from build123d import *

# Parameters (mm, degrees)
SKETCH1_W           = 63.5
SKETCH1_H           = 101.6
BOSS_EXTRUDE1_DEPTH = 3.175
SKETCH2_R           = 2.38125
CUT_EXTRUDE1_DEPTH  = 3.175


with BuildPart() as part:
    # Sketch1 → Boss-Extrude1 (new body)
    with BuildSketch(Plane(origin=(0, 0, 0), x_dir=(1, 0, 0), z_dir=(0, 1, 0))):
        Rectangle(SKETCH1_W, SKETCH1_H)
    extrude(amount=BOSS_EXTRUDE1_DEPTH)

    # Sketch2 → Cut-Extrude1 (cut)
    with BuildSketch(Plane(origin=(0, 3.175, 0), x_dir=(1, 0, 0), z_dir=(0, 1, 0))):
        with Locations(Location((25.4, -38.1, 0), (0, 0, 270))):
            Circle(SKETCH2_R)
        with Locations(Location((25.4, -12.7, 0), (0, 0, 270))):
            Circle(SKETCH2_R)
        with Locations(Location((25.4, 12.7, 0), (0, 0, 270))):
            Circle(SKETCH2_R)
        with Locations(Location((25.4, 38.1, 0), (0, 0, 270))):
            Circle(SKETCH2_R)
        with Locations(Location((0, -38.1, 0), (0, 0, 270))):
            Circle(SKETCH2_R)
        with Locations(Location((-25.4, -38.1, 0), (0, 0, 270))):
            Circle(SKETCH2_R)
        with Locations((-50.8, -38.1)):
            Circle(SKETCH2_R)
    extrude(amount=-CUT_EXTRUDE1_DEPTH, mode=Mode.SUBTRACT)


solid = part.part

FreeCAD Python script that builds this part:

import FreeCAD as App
import Part
import Sketcher
Q = App.Units.Quantity

doc = App.newDocument("Part")
body = doc.addObject("PartDesign::Body", "Body")

# Sketch on XZ plane
sketch1 = body.newObject("Sketcher::SketchObject", "Sketch")
sketch1.AttachmentSupport = (doc.getObject("XZ_Plane"), [""])
sketch1.MapMode = "FlatFace"
sketch1.addGeometry([
    Part.LineSegment(App.Vector(-32, -51, 0), App.Vector(-32, 51, 0)),
    Part.LineSegment(App.Vector(-32, 51, 0), App.Vector(32, 51, 0)),
    Part.LineSegment(App.Vector(32, 51, 0), App.Vector(32, -51, 0)),
    Part.LineSegment(App.Vector(32, -51, 0), App.Vector(-32, -51, 0)),
], False)
sketch1.addConstraint([
    Sketcher.Constraint("Coincident", 0, 2, 1, 1),
    Sketcher.Constraint("Coincident", 1, 2, 2, 1),
    Sketcher.Constraint("Coincident", 2, 2, 3, 1),
    Sketcher.Constraint("Coincident", 3, 2, 0, 1),
    Sketcher.Constraint("Vertical", 0),
    Sketcher.Constraint("Horizontal", 1),
    Sketcher.Constraint("Vertical", 2),
    Sketcher.Constraint("Horizontal", 3),
    Sketcher.Constraint("Symmetric", 0, 2, 2, 2, -1, 1),
    Sketcher.Constraint("DistanceY", 0, 1, 0, 2, Q("4 in")),
    Sketcher.Constraint("DistanceX", 1, 1, 1, 2, Q("2.5 in")),
])
pad1 = body.newObject("PartDesign::Pad", "Pad")
pad1.Profile = sketch1
pad1.Length = Q("0.125 in")
pad1.Reversed = True

# Sketch on XZ plane
sketch2 = body.newObject("Sketcher::SketchObject", "Sketch001")
sketch2.AttachmentSupport = (doc.getObject("XZ_Plane"), [""])
sketch2.MapMode = "FlatFace"
sketch2.AttachmentOffset = App.Placement(App.Vector(0, 0, -0.125 * 25.4), App.Rotation())
sketch2.addGeometry([
    Part.Circle(App.Vector(25.4, 38.1, 0), App.Vector(0, 0, 1), 2.4),  # 0
    Part.Circle(App.Vector(25.4, 12.7, 0), App.Vector(0, 0, 1), 2.4),  # 1
    Part.Circle(App.Vector(25.4, -12.7, 0), App.Vector(0, 0, 1), 2.4),  # 2
    Part.Circle(App.Vector(25.4, -38.1, 0), App.Vector(0, 0, 1), 2.4),  # 3
    Part.Circle(App.Vector(0, 38.1, 0), App.Vector(0, 0, 1), 2.4),  # 4
    Part.Circle(App.Vector(-25.4, 38.1, 0), App.Vector(0, 0, 1), 2.4),  # 5
    Part.Circle(App.Vector(-50.8, 38.1, 0), App.Vector(0, 0, 1), 2.4),  # 6
], False)
sketch2.addConstraint([
    Sketcher.Constraint("Equal", 0, 1),
    Sketcher.Constraint("Equal", 1, 2),
    Sketcher.Constraint("Equal", 2, 3),
    Sketcher.Constraint("Equal", 3, 4),
    Sketcher.Constraint("Equal", 4, 5),
    Sketcher.Constraint("Equal", 5, 6),
    Sketcher.Constraint("Symmetric", 3, 3, 5, 3, -1, 1),
    Sketcher.Constraint("Symmetric", 0, 3, 5, 3, -2),
    Sketcher.Constraint("Symmetric", 1, 3, 2, 3, -1),
    Sketcher.Constraint("PointOnObject", 4, 3, -2),
    Sketcher.Constraint("Horizontal", 0, 3, 4, 3),
    Sketcher.Constraint("Horizontal", 5, 3, 6, 3),
    Sketcher.Constraint("Vertical", 0, 3, 1, 3),
    Sketcher.Constraint("Diameter", 0, Q("0.1875 in")),
    Sketcher.Constraint("DistanceX", -1, 1, 0, 3, Q("1 in")),
    Sketcher.Constraint("DistanceX", 6, 3, -1, 1, Q("2 in")),
    Sketcher.Constraint("DistanceY", 1, 3, 0, 3, Q("1 in")),
    Sketcher.Constraint("DistanceY", 2, 3, 1, 3, Q("1 in")),
])
pocket1 = body.newObject("PartDesign::Pocket", "Pocket")
pocket1.Profile = sketch2
pocket1.Length = Q("0.125 in")
pocket1.Reversed = True

doc.recompute()
